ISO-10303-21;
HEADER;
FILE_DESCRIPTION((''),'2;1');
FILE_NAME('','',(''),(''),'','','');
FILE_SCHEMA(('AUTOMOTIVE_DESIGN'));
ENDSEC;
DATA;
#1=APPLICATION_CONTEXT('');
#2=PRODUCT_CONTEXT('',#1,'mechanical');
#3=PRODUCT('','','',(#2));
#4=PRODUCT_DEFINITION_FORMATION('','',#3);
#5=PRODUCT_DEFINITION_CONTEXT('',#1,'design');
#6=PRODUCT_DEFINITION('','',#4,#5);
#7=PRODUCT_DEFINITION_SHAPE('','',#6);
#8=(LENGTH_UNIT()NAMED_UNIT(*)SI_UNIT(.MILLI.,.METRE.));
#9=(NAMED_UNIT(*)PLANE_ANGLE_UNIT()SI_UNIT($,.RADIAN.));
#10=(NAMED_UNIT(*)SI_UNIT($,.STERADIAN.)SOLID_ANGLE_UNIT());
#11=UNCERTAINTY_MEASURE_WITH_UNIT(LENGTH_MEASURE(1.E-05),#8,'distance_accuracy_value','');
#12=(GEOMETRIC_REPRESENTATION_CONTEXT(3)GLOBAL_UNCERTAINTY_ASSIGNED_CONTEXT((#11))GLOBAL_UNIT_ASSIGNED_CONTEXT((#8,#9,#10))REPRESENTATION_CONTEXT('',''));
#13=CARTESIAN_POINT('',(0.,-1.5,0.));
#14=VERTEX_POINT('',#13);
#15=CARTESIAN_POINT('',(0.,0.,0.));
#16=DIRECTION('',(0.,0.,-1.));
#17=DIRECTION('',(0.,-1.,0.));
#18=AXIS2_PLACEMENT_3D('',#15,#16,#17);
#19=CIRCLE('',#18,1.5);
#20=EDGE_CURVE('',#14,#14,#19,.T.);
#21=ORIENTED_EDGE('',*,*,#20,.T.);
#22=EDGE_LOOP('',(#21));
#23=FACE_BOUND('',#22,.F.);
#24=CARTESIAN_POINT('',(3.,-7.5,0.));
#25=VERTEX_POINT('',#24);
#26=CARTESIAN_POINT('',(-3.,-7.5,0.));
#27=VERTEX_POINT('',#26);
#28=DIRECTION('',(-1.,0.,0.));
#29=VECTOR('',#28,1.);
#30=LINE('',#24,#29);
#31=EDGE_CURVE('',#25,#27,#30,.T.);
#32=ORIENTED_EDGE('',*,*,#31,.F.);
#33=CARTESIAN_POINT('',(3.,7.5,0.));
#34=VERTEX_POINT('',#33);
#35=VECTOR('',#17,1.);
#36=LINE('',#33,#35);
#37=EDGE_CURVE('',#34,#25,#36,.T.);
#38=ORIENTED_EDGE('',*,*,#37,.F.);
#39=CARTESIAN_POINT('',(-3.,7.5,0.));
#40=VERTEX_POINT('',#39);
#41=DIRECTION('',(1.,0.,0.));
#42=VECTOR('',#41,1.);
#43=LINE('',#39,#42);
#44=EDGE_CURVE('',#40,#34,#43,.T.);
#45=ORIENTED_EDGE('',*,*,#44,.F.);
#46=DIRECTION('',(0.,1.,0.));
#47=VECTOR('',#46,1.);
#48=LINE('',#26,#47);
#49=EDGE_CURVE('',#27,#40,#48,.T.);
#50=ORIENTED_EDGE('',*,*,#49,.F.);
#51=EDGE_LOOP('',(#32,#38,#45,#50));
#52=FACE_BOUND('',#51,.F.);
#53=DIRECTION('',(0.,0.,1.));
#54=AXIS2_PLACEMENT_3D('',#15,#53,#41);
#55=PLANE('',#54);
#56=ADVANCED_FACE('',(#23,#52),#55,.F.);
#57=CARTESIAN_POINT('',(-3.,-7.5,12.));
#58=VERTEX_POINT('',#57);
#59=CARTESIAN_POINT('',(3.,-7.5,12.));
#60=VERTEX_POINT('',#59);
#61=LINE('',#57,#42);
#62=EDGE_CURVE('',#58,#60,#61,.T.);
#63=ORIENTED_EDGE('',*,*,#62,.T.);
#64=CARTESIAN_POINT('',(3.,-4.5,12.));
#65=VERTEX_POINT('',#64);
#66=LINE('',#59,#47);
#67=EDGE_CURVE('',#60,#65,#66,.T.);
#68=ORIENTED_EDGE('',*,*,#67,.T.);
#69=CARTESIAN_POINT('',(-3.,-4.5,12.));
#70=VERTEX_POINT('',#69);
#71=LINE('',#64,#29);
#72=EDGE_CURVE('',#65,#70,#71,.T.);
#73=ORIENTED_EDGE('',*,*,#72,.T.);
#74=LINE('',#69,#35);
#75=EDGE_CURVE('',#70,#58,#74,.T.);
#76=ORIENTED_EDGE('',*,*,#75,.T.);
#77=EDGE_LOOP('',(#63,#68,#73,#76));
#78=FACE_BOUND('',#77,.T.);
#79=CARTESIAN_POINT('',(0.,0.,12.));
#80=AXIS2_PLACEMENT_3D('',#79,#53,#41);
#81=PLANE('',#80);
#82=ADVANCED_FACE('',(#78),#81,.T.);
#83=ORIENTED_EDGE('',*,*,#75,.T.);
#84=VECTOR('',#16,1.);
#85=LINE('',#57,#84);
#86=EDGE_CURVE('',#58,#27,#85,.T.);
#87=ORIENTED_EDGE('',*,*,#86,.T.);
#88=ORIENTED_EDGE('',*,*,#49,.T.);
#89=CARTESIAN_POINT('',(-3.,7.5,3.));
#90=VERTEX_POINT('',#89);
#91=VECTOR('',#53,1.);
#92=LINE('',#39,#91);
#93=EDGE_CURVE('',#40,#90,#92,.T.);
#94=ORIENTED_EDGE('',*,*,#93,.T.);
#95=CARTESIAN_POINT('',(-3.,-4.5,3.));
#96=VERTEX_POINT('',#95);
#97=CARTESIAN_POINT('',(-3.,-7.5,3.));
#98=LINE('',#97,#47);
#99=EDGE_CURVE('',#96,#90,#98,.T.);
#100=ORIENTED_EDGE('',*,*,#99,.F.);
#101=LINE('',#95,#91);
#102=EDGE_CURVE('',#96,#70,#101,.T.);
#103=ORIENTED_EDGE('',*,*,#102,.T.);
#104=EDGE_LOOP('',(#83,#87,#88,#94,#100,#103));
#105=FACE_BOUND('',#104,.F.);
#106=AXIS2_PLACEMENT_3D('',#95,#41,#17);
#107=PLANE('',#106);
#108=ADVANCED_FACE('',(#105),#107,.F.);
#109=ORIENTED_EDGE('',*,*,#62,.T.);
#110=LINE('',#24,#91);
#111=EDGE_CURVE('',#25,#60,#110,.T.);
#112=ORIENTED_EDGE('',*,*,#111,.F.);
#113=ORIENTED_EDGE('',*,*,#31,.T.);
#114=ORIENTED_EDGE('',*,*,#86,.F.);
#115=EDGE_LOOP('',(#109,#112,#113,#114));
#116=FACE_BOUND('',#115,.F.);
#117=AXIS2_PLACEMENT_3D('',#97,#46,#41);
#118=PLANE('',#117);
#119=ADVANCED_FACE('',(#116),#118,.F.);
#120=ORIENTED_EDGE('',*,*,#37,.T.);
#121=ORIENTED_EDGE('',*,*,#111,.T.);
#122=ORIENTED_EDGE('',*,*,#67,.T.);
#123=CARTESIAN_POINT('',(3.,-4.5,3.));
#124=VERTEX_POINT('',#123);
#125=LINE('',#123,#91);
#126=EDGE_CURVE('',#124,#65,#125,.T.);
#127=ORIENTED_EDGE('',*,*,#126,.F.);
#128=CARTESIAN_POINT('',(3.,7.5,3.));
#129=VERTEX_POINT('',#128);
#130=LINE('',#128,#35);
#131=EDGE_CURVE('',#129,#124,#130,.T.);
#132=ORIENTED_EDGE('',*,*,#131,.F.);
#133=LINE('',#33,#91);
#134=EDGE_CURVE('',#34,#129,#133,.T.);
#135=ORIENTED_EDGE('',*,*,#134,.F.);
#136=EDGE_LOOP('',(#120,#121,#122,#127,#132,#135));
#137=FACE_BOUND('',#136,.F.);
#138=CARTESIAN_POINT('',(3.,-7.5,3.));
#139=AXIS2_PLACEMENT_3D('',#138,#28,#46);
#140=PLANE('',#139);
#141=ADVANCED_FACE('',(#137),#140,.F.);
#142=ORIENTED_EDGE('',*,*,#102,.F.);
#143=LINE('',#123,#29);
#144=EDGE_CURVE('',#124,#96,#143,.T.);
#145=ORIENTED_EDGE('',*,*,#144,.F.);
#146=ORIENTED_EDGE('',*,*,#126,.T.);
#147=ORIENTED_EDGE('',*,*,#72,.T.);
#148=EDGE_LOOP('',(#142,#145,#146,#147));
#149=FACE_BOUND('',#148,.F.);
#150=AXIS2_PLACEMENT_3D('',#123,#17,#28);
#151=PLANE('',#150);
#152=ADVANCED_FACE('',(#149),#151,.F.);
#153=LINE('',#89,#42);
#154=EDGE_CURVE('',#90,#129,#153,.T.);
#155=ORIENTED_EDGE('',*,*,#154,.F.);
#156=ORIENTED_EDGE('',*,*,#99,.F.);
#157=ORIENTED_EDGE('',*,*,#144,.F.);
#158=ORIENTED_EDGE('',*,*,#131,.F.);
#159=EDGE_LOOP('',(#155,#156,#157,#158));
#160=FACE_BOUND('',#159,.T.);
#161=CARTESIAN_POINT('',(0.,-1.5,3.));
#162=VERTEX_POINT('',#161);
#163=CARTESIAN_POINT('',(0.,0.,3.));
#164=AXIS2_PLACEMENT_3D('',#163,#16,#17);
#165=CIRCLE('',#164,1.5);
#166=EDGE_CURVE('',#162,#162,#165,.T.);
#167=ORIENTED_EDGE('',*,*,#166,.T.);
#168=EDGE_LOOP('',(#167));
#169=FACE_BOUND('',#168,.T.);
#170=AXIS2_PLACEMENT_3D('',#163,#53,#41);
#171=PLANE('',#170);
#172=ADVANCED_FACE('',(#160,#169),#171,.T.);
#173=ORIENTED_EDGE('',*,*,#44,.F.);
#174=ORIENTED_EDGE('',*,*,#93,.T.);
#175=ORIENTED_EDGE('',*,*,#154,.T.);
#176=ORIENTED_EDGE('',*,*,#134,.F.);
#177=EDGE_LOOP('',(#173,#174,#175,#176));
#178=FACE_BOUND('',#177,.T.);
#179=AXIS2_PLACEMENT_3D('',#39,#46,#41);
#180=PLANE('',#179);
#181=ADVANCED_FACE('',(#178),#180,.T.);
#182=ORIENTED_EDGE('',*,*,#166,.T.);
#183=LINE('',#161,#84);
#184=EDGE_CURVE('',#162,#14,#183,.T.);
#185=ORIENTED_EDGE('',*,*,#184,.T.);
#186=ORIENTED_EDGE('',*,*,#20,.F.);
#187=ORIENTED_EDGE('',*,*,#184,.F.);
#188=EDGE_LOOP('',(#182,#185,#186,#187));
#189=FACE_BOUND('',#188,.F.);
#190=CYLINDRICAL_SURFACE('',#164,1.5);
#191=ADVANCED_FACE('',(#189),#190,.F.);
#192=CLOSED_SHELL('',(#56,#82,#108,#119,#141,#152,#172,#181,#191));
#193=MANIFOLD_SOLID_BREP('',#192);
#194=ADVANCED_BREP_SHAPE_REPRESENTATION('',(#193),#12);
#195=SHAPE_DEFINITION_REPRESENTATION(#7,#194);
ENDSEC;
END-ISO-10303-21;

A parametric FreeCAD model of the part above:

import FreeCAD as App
import Part
import Sketcher

V = App.Vector


def add_polygon(sketch, points):
    """Adds a closed chain of lines whose ends are joined by coincident constraints."""
    first, n = sketch.GeometryCount, len(points)
    for a, b in zip(points, points[1:] + points[:1]):
        sketch.addGeometry(Part.LineSegment(App.Vector(*a, 0), App.Vector(*b, 0)), False)
    for i in range(n):
        sketch.addConstraint(Sketcher.Constraint("Coincident", first + i, 2, first + (i + 1) % n, 1))

doc = App.newDocument("Part")
body = doc.addObject("PartDesign::Body", "Body")

# Sketch on XY plane
sketch1 = doc.addObject("Sketcher::SketchObject", "Sketch")
body.addObject(sketch1)
sketch1.AttachmentSupport = (doc.XY_Plane, [""])
sketch1.MapMode = "FlatFace"
add_polygon(sketch1, [(3, 8), (-3, 8), (-3, -8), (3, -8)])  # lines 0-3
sketch1.addConstraint(Sketcher.Constraint("Horizontal", 0))
sketch1.addConstraint(Sketcher.Constraint("Vertical", 1))
sketch1.addConstraint(Sketcher.Constraint("Horizontal", 2))
sketch1.addConstraint(Sketcher.Constraint("Vertical", 3))
sketch1.addConstraint(Sketcher.Constraint("Symmetric", 0, 2, 2, 2, -1, 1))
sketch1.addConstraint(Sketcher.Constraint("DistanceX", 0, 2, 0, 1, 6.0))
sketch1.addConstraint(Sketcher.Constraint("DistanceY", 1, 2, 1, 1, 15.0))
pad1 = doc.addObject("PartDesign::Pad", "Pad")
body.addObject(pad1)
pad1.Profile = sketch1
pad1.Length = 3

# Sketch on XY plane
sketch2 = doc.addObject("Sketcher::SketchObject", "Sketch001")
body.addObject(sketch2)
sketch2.AttachmentSupport = (doc.XY_Plane, [""])
sketch2.MapMode = "FlatFace"
sketch2.AttachmentOffset = App.Placement(V(0, 0, 3), App.Rotation())
sketch2.addGeometry(Part.Circle(V(0, 0, 0), V(0, 0, 1), 1.5), False)
sketch2.addConstraint(Sketcher.Constraint("Coincident", 0, 3, -1, 1))
sketch2.addConstraint(Sketcher.Constraint("Diameter", 0, 3.0))
doc.recompute()
hole = doc.addObject("PartDesign::Hole", "Hole")
body.addObject(hole)
hole.Profile = sketch2
hole.ThreadType = "None"
hole.Diameter = 3
hole.DepthType = "ThroughAll"

# Sketch on XY plane
sketch3 = doc.addObject("Sketcher::SketchObject", "Sketch002")
body.addObject(sketch3)
sketch3.AttachmentSupport = (doc.XY_Plane, [""])
sketch3.MapMode = "FlatFace"
sketch3.AttachmentOffset = App.Placement(V(0, 0, 3), App.Rotation())
add_polygon(sketch3, [(-3, -7.5), (3, -7.5), (3, -4.5), (-3, -4.5)])  # lines 0-3
sketch3.addConstraint(Sketcher.Constraint("Horizontal", 0))
sketch3.addConstraint(Sketcher.Constraint("Vertical", 1))
sketch3.addConstraint(Sketcher.Constraint("Horizontal", 2))
sketch3.addConstraint(Sketcher.Constraint("Vertical", 3))
sketch3.addConstraint(Sketcher.Constraint("DistanceY", 1, 1, 1, 2, 3.0))
sketch3.addConstraint(Sketcher.Constraint("DistanceX", -1, 1, 0, 2, 3.0))
sketch3.addConstraint(Sketcher.Constraint("DistanceX", 2, 2, -1, 1, 3.0))
sketch3.addConstraint(Sketcher.Constraint("DistanceY", 0, 2, -1, 1, 7.5))
pad2 = doc.addObject("PartDesign::Pad", "Pad001")
body.addObject(pad2)
pad2.Profile = sketch3
pad2.Length = 9

doc.recompute()
